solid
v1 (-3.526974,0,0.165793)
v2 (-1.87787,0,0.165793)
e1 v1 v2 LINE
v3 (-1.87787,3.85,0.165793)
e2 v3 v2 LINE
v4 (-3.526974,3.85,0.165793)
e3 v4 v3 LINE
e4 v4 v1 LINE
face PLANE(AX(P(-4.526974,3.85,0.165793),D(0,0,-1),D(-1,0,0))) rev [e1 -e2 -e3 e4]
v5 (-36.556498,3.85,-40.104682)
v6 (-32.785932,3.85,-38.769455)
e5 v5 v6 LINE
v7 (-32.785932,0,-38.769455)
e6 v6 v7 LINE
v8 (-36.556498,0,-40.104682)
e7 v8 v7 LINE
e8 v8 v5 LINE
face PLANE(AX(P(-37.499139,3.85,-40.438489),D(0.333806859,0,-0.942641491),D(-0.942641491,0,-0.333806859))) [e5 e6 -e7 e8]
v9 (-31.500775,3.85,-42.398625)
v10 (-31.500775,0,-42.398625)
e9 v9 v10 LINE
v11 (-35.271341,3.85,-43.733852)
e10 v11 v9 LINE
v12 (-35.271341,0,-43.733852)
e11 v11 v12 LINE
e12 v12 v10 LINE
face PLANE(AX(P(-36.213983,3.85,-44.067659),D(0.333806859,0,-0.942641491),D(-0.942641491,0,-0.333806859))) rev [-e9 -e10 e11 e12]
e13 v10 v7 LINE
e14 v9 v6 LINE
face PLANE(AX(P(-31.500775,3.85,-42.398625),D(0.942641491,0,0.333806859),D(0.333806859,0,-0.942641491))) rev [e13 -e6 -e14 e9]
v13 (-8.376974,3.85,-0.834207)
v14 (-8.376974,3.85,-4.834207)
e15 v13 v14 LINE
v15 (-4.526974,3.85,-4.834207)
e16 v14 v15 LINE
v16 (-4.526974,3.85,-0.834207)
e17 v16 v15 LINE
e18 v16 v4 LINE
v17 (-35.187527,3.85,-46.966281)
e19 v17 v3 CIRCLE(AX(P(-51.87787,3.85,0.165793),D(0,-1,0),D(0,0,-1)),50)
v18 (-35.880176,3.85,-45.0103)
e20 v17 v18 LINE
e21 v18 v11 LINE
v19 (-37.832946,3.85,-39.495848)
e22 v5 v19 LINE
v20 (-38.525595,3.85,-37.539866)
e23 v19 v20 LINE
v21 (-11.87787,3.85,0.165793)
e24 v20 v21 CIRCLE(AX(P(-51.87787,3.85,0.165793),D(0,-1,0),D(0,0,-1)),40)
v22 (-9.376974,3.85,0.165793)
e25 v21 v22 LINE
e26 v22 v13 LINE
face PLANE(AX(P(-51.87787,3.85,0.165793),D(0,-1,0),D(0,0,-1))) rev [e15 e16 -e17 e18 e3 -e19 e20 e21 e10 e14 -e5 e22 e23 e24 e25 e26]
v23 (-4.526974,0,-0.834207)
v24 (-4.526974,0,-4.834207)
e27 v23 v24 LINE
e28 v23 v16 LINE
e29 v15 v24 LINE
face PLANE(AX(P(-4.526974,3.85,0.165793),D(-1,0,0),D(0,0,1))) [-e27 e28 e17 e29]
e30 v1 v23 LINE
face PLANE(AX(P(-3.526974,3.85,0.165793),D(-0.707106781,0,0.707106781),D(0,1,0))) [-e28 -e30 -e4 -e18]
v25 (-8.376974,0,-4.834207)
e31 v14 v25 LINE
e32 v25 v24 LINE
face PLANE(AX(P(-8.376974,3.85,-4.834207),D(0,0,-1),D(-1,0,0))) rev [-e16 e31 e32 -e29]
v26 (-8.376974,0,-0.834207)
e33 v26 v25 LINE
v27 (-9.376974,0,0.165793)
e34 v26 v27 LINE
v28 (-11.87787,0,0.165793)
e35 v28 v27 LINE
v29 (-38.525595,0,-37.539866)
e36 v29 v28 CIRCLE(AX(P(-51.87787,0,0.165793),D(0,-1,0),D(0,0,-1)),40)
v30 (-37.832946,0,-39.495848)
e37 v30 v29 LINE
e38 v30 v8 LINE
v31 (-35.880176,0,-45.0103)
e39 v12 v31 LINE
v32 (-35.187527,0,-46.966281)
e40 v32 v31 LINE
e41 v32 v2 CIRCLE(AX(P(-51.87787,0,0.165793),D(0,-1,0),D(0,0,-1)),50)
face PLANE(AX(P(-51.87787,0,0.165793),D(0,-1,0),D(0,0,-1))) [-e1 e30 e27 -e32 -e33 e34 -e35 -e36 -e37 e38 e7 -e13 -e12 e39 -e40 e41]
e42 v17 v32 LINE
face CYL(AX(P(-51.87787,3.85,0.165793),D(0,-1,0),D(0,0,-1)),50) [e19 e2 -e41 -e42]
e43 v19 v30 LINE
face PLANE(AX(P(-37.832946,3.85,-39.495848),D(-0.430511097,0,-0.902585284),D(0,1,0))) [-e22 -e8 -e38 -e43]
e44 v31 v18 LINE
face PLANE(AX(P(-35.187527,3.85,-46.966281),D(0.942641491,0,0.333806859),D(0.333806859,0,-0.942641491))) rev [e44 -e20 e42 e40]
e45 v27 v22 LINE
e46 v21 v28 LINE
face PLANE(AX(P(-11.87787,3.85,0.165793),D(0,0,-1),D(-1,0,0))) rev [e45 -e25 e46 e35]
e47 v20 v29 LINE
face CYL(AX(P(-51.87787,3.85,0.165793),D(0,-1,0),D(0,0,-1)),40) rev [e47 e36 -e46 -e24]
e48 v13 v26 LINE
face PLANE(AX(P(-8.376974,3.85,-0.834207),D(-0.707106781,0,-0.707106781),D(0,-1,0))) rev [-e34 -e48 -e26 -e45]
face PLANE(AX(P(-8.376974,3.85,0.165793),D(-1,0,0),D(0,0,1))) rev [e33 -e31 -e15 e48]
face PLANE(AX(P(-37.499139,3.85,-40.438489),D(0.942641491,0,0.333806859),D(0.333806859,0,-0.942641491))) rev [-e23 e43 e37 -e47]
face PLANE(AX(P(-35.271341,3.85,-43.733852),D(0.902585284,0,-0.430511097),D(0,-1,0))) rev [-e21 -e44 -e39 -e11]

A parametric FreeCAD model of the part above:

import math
import FreeCAD as App
import Part
import Sketcher
Q = App.Units.Quantity


def edges_at(feature, points):
    """Names of the edges that pass closest to the given points."""
    edges = feature.Shape.Edges
    near = lambda p: min(range(len(edges)), key=lambda i: edges[i].distToShape(Part.Vertex(*p))[0])
    return sorted({f"Edge{near(p) + 1}" for p in points})

doc = App.newDocument("Part")
body = doc.addObject("PartDesign::Body", "Body")

# Sketch on XZ plane
sketch1 = body.newObject("Sketcher::SketchObject", "Sketch")
sketch1.AttachmentSupport = (doc.getObject("XZ_Plane"), [""])
sketch1.MapMode = "FlatFace"
sketch1.addGeometry([
    Part.LineSegment(App.Vector(-35.187527, -46.966281, 0), App.Vector(-36.213983, -44.067659, 0)),  # 0
    Part.LineSegment(App.Vector(-36.213983, -44.067659, 0), App.Vector(-31.500775, -42.398625, 0)),  # 1
    Part.LineSegment(App.Vector(-31.500775, -42.398625, 0), App.Vector(-32.785932, -38.769455, 0)),  # 2
    Part.LineSegment(App.Vector(-32.785932, -38.769455, 0), App.Vector(-37.499139, -40.438489, 0)),  # 3
    Part.LineSegment(App.Vector(-37.499139, -40.438489, 0), App.Vector(-38.525595, -37.539866, 0)),  # 4
    Part.ArcOfCircle(Part.Circle(App.Vector(-51.87787, 0.165793, 0), App.Vector(0, 0, 1), 40), math.radians(-70.5), math.radians(0)),  # 5
    Part.LineSegment(App.Vector(-11.87787, 0.165793, 0), App.Vector(-8.376974, 0.165793, 0)),  # 6
    Part.LineSegment(App.Vector(-8.376974, 0.165793, 0), App.Vector(-8.376974, -4.834207, 0)),  # 7
    Part.LineSegment(App.Vector(-8.376974, -4.834207, 0), App.Vector(-4.526974, -4.834207, 0)),  # 8
    Part.LineSegment(App.Vector(-4.526974, -4.834207, 0), App.Vector(-4.526974, 0.165793, 0)),  # 9
    Part.LineSegment(App.Vector(-4.526974, 0.165793, 0), App.Vector(-1.87787, 0.165793, 0)),  # 10
    Part.ArcOfCircle(Part.Circle(App.Vector(-51.87787, 0.165793, 0), App.Vector(0, 0, 1), 50), math.radians(-70.5), math.radians(0)),  # 11
], False)
sketch1.addConstraint([
    Sketcher.Constraint("Coincident", 0, 2, 1, 1),
    Sketcher.Constraint("Coincident", 1, 2, 2, 1),
    Sketcher.Constraint("Coincident", 2, 2, 3, 1),
    Sketcher.Constraint("Coincident", 3, 2, 4, 1),
    Sketcher.Constraint("Coincident", 4, 2, 5, 1),
    Sketcher.Constraint("Coincident", 5, 2, 6, 1),
    Sketcher.Constraint("Coincident", 6, 2, 7, 1),
    Sketcher.Constraint("Coincident", 7, 2, 8, 1),
    Sketcher.Constraint("Coincident", 8, 2, 9, 1),
    Sketcher.Constraint("Coincident", 9, 2, 10, 1),
    Sketcher.Constraint("Coincident", 10, 2, 11, 2),
    Sketcher.Constraint("Coincident", 11, 1, 0, 1),
    Sketcher.Constraint("Horizontal", 6),
    Sketcher.Constraint("Vertical", 7),
    Sketcher.Constraint("Horizontal", 8),
    Sketcher.Constraint("Vertical", 9),
    Sketcher.Constraint("Horizontal", 10),
    Sketcher.Constraint("Coincident", 11, 3, 5, 3),
    Sketcher.Constraint("Perpendicular", 0, 1),
    Sketcher.Constraint("Perpendicular", 1, 2),
    Sketcher.Constraint("Perpendicular", 2, 3),
    Sketcher.Constraint("Perpendicular", 3, 4),
    Sketcher.Constraint("Horizontal", 11, 3, 5, 2),
    Sketcher.Constraint("Horizontal", 6, 2, 9, 2),
    Sketcher.Constraint("Equal", 1, 3),
    Sketcher.Constraint("Equal", 0, 4),
    Sketcher.Constraint("Radius", 5, 40.0),
    Sketcher.Constraint("Radius", 11, 50.0),
    Sketcher.Constraint("DistanceY", 7, 2, 7, 1, 5.0),
    Sketcher.Constraint("Distance", 1, 5.0),
    Sketcher.Constraint("Angle", 0, Q("109.5 deg")),
    Sketcher.Constraint("DistanceX", 8, 1, 8, 2, 3.85),
    Sketcher.Constraint("Distance", 2, 3.85),
    Sketcher.Constraint("DistanceX", 1, 2, 8, 2, 26.973802),
    Sketcher.Constraint("DistanceX", 6, 1, 6, 2, 3.500896),
    Sketcher.Constraint("DistanceX", 5, 3, -1, 1, 51.87787),
    Sketcher.Constraint("DistanceY", 0, 2, -1, 1, 44.067659),
])
pad1 = body.newObject("PartDesign::Pad", "Pad")
pad1.Profile = sketch1
pad1.Length = 3.85
pad1.Reversed = True
doc.recompute()

chamfer = body.newObject("PartDesign::Chamfer", "Chamfer")
chamfer.Base = (pad1, edges_at(pad1, [
    (-4.527, 1.925, 0.166),
    (-8.377, 1.925, 0.166),
    (-37.499, 1.925, -40.438),
    (-36.214, 1.925, -44.068),
]))
chamfer.Size = 1

doc.recompute()
